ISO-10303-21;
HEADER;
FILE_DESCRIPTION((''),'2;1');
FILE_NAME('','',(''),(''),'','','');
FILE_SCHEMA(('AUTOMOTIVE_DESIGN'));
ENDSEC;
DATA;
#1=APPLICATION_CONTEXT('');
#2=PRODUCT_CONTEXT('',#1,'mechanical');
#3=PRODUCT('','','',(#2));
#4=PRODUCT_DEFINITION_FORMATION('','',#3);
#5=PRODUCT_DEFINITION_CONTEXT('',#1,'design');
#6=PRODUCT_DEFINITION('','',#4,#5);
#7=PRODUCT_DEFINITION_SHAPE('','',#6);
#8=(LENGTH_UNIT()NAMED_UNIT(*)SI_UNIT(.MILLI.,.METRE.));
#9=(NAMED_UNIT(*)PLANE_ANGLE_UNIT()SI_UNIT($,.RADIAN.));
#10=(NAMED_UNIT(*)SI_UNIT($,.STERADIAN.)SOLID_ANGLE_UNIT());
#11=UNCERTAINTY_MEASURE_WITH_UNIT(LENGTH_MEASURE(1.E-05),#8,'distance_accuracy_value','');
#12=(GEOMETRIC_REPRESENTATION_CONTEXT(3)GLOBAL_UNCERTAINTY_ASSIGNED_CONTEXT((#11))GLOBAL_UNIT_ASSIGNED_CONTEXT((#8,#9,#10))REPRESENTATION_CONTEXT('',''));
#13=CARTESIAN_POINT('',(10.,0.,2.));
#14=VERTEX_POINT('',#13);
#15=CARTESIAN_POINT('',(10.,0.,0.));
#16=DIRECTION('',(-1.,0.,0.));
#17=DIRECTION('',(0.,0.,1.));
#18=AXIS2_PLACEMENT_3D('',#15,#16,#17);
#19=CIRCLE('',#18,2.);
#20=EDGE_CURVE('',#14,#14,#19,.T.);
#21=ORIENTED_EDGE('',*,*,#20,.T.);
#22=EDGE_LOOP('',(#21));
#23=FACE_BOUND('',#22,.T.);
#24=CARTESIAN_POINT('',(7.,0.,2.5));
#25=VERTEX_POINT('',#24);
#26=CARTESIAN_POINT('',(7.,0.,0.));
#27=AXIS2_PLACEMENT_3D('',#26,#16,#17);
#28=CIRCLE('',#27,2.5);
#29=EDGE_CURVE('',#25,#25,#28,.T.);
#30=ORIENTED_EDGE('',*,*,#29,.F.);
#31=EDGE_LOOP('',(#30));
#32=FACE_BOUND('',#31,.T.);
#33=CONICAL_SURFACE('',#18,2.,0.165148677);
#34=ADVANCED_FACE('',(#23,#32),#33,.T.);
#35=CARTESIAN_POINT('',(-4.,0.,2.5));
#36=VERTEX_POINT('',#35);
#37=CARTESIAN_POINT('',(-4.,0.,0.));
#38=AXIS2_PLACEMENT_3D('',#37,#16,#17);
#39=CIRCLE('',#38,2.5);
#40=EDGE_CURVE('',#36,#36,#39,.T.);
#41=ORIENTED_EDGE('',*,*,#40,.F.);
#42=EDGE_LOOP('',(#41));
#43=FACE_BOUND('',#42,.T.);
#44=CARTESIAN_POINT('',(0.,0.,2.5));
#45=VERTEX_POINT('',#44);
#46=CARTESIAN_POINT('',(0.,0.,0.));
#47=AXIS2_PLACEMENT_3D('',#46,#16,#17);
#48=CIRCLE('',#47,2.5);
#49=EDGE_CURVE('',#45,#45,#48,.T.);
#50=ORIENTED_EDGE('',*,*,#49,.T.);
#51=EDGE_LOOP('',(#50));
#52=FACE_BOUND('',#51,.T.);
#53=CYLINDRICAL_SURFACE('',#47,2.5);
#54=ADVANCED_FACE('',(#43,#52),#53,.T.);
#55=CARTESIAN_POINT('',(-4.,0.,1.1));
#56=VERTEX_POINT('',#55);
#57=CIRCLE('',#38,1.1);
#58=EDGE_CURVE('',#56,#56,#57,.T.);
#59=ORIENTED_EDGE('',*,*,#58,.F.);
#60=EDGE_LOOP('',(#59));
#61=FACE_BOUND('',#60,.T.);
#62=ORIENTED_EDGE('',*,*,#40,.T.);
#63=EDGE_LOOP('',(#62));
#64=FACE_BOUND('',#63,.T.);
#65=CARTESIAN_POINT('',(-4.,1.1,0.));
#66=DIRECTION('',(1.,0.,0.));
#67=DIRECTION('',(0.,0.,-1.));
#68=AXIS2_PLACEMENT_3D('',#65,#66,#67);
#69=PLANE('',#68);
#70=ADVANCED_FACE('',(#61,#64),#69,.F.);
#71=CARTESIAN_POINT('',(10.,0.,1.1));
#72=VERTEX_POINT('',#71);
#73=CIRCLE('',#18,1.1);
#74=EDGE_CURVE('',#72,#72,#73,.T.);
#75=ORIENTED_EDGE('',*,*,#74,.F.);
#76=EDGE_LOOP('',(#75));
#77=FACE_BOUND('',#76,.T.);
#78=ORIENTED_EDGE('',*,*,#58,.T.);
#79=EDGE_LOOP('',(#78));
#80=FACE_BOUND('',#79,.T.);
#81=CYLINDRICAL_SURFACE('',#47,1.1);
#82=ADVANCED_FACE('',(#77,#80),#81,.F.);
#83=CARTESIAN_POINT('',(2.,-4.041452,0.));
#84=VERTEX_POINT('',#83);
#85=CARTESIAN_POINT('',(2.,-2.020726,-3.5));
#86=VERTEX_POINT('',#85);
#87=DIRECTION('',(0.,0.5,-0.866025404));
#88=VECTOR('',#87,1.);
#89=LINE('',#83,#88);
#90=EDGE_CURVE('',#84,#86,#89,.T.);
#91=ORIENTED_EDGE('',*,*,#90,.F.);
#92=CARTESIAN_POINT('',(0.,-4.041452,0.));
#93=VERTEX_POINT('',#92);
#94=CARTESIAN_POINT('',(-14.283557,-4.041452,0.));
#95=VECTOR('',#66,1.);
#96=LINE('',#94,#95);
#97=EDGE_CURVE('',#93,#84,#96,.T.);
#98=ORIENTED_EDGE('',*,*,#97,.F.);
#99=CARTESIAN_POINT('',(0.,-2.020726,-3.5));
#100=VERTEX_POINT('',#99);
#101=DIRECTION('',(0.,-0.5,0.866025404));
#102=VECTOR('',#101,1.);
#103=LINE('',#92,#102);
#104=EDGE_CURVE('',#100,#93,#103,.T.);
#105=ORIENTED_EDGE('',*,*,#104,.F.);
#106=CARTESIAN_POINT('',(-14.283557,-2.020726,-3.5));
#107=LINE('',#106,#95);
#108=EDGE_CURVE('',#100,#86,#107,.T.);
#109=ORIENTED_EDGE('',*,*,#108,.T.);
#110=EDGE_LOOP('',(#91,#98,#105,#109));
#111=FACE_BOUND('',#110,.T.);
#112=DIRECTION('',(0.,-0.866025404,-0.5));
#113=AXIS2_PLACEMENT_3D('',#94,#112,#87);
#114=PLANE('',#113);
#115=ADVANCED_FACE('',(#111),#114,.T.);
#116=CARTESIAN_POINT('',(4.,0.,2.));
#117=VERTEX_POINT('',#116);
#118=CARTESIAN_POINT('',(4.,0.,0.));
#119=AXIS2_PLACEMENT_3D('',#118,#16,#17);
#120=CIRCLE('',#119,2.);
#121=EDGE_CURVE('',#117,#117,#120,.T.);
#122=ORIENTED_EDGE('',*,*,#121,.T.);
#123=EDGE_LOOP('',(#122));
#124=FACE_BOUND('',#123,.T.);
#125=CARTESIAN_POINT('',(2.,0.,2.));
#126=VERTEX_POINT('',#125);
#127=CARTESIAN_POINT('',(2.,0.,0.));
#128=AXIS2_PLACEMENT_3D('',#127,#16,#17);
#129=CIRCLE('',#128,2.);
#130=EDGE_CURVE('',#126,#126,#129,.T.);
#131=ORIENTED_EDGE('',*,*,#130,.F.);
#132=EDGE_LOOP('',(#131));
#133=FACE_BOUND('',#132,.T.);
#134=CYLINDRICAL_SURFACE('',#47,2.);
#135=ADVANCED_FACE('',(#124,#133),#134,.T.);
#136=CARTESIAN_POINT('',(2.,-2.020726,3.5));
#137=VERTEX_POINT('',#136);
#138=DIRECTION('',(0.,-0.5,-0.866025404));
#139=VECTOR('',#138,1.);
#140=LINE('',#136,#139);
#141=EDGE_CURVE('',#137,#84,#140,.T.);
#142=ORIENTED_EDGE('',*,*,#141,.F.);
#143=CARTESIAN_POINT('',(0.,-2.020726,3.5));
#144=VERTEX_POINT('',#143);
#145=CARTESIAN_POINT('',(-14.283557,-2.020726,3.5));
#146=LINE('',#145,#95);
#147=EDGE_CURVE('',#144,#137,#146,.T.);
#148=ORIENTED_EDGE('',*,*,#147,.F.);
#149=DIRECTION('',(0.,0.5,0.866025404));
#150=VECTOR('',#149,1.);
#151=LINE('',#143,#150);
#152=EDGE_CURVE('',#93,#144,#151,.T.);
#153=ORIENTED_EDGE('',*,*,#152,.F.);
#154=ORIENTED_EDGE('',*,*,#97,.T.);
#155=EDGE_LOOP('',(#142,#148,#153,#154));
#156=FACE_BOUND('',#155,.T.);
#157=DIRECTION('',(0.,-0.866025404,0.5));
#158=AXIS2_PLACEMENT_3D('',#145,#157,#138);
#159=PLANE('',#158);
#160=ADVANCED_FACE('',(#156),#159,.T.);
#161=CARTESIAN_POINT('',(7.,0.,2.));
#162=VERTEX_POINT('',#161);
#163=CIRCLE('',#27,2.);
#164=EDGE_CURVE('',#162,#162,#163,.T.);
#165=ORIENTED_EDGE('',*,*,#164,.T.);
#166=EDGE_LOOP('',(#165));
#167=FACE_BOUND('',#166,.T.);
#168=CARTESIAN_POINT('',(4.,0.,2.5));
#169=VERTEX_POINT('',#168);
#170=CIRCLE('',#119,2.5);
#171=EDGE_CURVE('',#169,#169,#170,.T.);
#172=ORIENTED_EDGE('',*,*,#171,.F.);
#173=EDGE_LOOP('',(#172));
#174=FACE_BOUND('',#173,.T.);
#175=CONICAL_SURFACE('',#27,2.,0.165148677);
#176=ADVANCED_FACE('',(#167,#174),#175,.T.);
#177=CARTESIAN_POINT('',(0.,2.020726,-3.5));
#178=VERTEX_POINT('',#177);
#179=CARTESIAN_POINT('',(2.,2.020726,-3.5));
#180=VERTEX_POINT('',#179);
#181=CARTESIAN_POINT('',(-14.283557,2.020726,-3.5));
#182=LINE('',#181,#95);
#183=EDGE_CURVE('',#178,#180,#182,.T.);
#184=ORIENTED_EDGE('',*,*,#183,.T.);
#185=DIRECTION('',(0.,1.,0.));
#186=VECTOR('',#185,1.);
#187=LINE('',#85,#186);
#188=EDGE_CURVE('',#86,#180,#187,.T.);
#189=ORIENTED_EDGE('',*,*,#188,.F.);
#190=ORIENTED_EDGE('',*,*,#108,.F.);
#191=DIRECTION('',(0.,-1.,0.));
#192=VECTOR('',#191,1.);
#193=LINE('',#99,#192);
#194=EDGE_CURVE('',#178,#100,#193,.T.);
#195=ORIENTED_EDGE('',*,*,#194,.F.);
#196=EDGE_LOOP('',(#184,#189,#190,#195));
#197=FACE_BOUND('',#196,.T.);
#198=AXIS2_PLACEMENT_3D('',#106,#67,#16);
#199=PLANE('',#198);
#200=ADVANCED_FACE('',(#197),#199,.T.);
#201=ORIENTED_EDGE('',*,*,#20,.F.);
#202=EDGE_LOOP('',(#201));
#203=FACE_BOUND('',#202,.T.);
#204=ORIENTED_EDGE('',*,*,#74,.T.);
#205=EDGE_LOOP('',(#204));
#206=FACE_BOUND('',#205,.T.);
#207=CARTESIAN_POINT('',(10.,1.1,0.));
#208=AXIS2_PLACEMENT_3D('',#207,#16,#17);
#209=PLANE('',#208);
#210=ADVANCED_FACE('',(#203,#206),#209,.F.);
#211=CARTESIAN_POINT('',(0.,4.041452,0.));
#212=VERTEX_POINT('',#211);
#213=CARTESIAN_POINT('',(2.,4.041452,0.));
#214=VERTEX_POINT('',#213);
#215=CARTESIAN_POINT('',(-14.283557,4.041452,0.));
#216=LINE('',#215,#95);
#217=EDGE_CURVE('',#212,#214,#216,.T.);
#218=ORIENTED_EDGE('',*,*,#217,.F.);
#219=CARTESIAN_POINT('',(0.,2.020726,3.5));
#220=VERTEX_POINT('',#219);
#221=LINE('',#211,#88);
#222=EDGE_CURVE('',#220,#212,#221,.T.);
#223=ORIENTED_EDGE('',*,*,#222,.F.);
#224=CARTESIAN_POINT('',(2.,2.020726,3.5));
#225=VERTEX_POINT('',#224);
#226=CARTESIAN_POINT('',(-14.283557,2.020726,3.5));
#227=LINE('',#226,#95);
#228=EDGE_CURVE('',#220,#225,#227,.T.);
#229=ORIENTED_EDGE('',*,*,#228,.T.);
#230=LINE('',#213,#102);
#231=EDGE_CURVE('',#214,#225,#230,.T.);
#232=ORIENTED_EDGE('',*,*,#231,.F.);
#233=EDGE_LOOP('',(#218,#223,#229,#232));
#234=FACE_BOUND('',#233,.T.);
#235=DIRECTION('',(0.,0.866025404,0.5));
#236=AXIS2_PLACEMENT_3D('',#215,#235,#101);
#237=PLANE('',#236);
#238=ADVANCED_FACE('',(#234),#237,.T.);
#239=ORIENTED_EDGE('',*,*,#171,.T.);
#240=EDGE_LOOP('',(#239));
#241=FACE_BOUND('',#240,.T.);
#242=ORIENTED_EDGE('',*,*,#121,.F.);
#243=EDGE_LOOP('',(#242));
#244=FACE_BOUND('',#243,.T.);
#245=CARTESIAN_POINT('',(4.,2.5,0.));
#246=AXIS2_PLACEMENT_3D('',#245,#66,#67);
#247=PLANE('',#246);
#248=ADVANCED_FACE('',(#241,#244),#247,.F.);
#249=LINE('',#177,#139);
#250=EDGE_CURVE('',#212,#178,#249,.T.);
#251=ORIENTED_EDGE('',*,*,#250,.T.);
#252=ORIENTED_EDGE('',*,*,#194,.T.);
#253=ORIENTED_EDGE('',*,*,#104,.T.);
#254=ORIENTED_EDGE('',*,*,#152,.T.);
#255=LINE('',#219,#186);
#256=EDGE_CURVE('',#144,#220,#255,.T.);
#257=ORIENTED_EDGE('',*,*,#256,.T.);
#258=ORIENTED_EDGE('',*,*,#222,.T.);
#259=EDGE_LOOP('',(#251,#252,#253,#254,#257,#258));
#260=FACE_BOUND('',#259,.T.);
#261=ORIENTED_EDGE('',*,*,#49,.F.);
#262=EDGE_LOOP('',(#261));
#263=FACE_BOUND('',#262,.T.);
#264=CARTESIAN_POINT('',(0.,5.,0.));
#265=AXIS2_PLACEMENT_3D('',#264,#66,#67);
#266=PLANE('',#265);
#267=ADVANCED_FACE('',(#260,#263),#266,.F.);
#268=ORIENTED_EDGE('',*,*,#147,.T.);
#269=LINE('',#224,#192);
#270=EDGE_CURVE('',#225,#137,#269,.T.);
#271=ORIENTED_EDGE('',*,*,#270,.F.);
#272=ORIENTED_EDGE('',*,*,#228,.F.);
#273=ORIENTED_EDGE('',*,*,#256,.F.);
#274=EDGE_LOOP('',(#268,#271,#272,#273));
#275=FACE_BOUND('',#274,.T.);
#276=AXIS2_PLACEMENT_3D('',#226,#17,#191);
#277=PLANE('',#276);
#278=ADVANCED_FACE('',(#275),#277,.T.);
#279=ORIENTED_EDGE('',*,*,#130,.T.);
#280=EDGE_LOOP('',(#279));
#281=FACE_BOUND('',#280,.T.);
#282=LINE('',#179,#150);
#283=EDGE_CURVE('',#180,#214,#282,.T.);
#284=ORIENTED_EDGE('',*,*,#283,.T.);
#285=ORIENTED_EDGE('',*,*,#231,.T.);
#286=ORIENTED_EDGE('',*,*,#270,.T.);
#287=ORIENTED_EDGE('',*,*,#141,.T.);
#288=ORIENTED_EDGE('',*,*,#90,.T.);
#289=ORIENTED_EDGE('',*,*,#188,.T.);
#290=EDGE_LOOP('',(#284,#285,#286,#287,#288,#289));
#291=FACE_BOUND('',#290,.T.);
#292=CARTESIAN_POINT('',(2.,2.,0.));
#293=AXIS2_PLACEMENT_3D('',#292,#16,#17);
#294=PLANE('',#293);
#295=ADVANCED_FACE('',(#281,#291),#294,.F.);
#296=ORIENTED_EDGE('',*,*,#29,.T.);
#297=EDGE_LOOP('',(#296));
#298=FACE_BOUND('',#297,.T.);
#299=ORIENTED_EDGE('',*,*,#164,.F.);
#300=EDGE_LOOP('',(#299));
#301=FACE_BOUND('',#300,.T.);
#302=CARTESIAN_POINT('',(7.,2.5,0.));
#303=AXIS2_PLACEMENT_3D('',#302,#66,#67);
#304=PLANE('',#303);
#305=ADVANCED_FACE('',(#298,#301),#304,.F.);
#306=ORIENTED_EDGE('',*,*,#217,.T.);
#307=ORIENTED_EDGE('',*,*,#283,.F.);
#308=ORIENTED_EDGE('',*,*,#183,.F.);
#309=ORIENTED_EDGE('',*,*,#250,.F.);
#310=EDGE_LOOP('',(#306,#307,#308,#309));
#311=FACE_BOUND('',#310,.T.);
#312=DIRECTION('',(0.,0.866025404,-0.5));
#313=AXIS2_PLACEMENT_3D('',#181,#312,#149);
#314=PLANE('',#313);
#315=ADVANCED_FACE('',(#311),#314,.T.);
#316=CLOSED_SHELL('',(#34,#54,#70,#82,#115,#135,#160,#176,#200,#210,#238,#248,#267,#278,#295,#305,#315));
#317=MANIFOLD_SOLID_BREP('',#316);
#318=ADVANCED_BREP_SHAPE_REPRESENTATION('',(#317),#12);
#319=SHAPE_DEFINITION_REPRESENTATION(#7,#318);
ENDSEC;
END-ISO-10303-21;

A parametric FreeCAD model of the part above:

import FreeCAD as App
import Part
import Sketcher
Q = App.Units.Quantity


def add_polygon(sketch, points):
    """Adds a closed chain of lines whose ends are joined by coincident constraints."""
    first, n = sketch.GeometryCount, len(points)
    for a, b in zip(points, points[1:] + points[:1]):
        sketch.addGeometry(Part.LineSegment(App.Vector(*a, 0), App.Vector(*b, 0)), False)
    for i in range(n):
        sketch.addConstraint(Sketcher.Constraint("Coincident", first + i, 2, first + (i + 1) % n, 1))

doc = App.newDocument("Part")
body = doc.addObject("PartDesign::Body", "Body")

# Sketch on XY plane
sketch1 = body.newObject("Sketcher::SketchObject", "Sketch")
sketch1.AttachmentSupport = (doc.getObject("XY_Plane"), [""])
sketch1.MapMode = "FlatFace"
add_polygon(sketch1, [(10, 1.1), (10, 2), (7, 2.5), (7, 2), (4, 2.5), (4, 2), (2, 2), (2, 5), (0, 5), (0, 2.5), (-4, 2.5), (-4, 1.1)])  # lines 0-11
sketch1.addConstraint([
    Sketcher.Constraint("Vertical", 0),
    Sketcher.Constraint("Vertical", 2),
    Sketcher.Constraint("Vertical", 4),
    Sketcher.Constraint("Horizontal", 5),
    Sketcher.Constraint("Vertical", 6),
    Sketcher.Constraint("Horizontal", 7),
    Sketcher.Constraint("Vertical", 8),
    Sketcher.Constraint("Horizontal", 9),
    Sketcher.Constraint("Vertical", 10),
    Sketcher.Constraint("Horizontal", 11),
    Sketcher.Constraint("Symmetric", 3, 2, 9, 2, -2),
    Sketcher.Constraint("PointOnObject", 7, 2, -2),
    Sketcher.Constraint("Parallel", 1, 3),
    Sketcher.Constraint("Horizontal", 0, 2, 2, 2),
    Sketcher.Constraint("Horizontal", 1, 2, 3, 2),
    Sketcher.Constraint("Horizontal", 2, 2, 4, 2),
    Sketcher.Constraint("Equal", 5, 7),
    Sketcher.Constraint("DistanceX", 5, 2, 5, 1, 2.0),
    Sketcher.Constraint("DistanceX", 11, 1, 11, 2, 14.0),
    Sketcher.Constraint("DistanceY", 6, 1, 6, 2, 3.0),
    Sketcher.Constraint("DistanceY", 0, 1, 0, 2, 0.9),
    Sketcher.Constraint("DistanceY", 2, 2, 2, 1, 0.5),
    Sketcher.Constraint("DistanceY", -1, 1, 0, 2, 2.0),
])
revolution = body.newObject("PartDesign::Revolution", "Revolution")
revolution.Profile = sketch1
revolution.ReferenceAxis = (sketch1, ["H_Axis"])
revolution.Angle = 360

# Sketch on YZ plane
sketch2 = body.newObject("Sketcher::SketchObject", "Sketch001")
sketch2.AttachmentSupport = (doc.getObject("YZ_Plane"), [""])
sketch2.MapMode = "FlatFace"
sketch2.AttachmentOffset = App.Placement(App.Vector(0, 0, 2), App.Rotation())
add_polygon(sketch2, [(8, 8), (-8, 8), (-8, -8), (8, -8)])  # lines 0-3
add_polygon(sketch2, [(-2, -3.5), (-4, 0), (-2, 3.5), (2, 3.5), (4, 0), (2, -3.5)])  # lines 4-9
sketch2.addConstraint([
    Sketcher.Constraint("Horizontal", 0),
    Sketcher.Constraint("Vertical", 1),
    Sketcher.Constraint("Horizontal", 2),
    Sketcher.Constraint("Vertical", 3),
    Sketcher.Constraint("Horizontal", 6),
    Sketcher.Constraint("Horizontal", 9),
    Sketcher.Constraint("Symmetric", 0, 2, 2, 2, -1, 1),
    Sketcher.Constraint("Symmetric", 4, 2, 7, 2, -1, 1),
    Sketcher.Constraint("Symmetric", 5, 2, 8, 2, -1, 1),
    Sketcher.Constraint("PointOnObject", 4, 2, -1),
    Sketcher.Constraint("Parallel", 4, 7),
    Sketcher.Constraint("Vertical", 6, 2, 8, 2),
    Sketcher.Constraint("Equal", 2, 1),
    Sketcher.Constraint("Angle", 4, Q("120 deg")),
    Sketcher.Constraint("DistanceY", 8, 2, 6, 2, 7.0),
    Sketcher.Constraint("DistanceX", 0, 2, 0, 1, 15.98),
    Sketcher.Constraint("DistanceX", 6, 1, 6, 2, 4.041452),
])
pocket1 = body.newObject("PartDesign::Pocket", "Pocket")
pocket1.Profile = sketch2
pocket1.Length = 2

doc.recompute()
